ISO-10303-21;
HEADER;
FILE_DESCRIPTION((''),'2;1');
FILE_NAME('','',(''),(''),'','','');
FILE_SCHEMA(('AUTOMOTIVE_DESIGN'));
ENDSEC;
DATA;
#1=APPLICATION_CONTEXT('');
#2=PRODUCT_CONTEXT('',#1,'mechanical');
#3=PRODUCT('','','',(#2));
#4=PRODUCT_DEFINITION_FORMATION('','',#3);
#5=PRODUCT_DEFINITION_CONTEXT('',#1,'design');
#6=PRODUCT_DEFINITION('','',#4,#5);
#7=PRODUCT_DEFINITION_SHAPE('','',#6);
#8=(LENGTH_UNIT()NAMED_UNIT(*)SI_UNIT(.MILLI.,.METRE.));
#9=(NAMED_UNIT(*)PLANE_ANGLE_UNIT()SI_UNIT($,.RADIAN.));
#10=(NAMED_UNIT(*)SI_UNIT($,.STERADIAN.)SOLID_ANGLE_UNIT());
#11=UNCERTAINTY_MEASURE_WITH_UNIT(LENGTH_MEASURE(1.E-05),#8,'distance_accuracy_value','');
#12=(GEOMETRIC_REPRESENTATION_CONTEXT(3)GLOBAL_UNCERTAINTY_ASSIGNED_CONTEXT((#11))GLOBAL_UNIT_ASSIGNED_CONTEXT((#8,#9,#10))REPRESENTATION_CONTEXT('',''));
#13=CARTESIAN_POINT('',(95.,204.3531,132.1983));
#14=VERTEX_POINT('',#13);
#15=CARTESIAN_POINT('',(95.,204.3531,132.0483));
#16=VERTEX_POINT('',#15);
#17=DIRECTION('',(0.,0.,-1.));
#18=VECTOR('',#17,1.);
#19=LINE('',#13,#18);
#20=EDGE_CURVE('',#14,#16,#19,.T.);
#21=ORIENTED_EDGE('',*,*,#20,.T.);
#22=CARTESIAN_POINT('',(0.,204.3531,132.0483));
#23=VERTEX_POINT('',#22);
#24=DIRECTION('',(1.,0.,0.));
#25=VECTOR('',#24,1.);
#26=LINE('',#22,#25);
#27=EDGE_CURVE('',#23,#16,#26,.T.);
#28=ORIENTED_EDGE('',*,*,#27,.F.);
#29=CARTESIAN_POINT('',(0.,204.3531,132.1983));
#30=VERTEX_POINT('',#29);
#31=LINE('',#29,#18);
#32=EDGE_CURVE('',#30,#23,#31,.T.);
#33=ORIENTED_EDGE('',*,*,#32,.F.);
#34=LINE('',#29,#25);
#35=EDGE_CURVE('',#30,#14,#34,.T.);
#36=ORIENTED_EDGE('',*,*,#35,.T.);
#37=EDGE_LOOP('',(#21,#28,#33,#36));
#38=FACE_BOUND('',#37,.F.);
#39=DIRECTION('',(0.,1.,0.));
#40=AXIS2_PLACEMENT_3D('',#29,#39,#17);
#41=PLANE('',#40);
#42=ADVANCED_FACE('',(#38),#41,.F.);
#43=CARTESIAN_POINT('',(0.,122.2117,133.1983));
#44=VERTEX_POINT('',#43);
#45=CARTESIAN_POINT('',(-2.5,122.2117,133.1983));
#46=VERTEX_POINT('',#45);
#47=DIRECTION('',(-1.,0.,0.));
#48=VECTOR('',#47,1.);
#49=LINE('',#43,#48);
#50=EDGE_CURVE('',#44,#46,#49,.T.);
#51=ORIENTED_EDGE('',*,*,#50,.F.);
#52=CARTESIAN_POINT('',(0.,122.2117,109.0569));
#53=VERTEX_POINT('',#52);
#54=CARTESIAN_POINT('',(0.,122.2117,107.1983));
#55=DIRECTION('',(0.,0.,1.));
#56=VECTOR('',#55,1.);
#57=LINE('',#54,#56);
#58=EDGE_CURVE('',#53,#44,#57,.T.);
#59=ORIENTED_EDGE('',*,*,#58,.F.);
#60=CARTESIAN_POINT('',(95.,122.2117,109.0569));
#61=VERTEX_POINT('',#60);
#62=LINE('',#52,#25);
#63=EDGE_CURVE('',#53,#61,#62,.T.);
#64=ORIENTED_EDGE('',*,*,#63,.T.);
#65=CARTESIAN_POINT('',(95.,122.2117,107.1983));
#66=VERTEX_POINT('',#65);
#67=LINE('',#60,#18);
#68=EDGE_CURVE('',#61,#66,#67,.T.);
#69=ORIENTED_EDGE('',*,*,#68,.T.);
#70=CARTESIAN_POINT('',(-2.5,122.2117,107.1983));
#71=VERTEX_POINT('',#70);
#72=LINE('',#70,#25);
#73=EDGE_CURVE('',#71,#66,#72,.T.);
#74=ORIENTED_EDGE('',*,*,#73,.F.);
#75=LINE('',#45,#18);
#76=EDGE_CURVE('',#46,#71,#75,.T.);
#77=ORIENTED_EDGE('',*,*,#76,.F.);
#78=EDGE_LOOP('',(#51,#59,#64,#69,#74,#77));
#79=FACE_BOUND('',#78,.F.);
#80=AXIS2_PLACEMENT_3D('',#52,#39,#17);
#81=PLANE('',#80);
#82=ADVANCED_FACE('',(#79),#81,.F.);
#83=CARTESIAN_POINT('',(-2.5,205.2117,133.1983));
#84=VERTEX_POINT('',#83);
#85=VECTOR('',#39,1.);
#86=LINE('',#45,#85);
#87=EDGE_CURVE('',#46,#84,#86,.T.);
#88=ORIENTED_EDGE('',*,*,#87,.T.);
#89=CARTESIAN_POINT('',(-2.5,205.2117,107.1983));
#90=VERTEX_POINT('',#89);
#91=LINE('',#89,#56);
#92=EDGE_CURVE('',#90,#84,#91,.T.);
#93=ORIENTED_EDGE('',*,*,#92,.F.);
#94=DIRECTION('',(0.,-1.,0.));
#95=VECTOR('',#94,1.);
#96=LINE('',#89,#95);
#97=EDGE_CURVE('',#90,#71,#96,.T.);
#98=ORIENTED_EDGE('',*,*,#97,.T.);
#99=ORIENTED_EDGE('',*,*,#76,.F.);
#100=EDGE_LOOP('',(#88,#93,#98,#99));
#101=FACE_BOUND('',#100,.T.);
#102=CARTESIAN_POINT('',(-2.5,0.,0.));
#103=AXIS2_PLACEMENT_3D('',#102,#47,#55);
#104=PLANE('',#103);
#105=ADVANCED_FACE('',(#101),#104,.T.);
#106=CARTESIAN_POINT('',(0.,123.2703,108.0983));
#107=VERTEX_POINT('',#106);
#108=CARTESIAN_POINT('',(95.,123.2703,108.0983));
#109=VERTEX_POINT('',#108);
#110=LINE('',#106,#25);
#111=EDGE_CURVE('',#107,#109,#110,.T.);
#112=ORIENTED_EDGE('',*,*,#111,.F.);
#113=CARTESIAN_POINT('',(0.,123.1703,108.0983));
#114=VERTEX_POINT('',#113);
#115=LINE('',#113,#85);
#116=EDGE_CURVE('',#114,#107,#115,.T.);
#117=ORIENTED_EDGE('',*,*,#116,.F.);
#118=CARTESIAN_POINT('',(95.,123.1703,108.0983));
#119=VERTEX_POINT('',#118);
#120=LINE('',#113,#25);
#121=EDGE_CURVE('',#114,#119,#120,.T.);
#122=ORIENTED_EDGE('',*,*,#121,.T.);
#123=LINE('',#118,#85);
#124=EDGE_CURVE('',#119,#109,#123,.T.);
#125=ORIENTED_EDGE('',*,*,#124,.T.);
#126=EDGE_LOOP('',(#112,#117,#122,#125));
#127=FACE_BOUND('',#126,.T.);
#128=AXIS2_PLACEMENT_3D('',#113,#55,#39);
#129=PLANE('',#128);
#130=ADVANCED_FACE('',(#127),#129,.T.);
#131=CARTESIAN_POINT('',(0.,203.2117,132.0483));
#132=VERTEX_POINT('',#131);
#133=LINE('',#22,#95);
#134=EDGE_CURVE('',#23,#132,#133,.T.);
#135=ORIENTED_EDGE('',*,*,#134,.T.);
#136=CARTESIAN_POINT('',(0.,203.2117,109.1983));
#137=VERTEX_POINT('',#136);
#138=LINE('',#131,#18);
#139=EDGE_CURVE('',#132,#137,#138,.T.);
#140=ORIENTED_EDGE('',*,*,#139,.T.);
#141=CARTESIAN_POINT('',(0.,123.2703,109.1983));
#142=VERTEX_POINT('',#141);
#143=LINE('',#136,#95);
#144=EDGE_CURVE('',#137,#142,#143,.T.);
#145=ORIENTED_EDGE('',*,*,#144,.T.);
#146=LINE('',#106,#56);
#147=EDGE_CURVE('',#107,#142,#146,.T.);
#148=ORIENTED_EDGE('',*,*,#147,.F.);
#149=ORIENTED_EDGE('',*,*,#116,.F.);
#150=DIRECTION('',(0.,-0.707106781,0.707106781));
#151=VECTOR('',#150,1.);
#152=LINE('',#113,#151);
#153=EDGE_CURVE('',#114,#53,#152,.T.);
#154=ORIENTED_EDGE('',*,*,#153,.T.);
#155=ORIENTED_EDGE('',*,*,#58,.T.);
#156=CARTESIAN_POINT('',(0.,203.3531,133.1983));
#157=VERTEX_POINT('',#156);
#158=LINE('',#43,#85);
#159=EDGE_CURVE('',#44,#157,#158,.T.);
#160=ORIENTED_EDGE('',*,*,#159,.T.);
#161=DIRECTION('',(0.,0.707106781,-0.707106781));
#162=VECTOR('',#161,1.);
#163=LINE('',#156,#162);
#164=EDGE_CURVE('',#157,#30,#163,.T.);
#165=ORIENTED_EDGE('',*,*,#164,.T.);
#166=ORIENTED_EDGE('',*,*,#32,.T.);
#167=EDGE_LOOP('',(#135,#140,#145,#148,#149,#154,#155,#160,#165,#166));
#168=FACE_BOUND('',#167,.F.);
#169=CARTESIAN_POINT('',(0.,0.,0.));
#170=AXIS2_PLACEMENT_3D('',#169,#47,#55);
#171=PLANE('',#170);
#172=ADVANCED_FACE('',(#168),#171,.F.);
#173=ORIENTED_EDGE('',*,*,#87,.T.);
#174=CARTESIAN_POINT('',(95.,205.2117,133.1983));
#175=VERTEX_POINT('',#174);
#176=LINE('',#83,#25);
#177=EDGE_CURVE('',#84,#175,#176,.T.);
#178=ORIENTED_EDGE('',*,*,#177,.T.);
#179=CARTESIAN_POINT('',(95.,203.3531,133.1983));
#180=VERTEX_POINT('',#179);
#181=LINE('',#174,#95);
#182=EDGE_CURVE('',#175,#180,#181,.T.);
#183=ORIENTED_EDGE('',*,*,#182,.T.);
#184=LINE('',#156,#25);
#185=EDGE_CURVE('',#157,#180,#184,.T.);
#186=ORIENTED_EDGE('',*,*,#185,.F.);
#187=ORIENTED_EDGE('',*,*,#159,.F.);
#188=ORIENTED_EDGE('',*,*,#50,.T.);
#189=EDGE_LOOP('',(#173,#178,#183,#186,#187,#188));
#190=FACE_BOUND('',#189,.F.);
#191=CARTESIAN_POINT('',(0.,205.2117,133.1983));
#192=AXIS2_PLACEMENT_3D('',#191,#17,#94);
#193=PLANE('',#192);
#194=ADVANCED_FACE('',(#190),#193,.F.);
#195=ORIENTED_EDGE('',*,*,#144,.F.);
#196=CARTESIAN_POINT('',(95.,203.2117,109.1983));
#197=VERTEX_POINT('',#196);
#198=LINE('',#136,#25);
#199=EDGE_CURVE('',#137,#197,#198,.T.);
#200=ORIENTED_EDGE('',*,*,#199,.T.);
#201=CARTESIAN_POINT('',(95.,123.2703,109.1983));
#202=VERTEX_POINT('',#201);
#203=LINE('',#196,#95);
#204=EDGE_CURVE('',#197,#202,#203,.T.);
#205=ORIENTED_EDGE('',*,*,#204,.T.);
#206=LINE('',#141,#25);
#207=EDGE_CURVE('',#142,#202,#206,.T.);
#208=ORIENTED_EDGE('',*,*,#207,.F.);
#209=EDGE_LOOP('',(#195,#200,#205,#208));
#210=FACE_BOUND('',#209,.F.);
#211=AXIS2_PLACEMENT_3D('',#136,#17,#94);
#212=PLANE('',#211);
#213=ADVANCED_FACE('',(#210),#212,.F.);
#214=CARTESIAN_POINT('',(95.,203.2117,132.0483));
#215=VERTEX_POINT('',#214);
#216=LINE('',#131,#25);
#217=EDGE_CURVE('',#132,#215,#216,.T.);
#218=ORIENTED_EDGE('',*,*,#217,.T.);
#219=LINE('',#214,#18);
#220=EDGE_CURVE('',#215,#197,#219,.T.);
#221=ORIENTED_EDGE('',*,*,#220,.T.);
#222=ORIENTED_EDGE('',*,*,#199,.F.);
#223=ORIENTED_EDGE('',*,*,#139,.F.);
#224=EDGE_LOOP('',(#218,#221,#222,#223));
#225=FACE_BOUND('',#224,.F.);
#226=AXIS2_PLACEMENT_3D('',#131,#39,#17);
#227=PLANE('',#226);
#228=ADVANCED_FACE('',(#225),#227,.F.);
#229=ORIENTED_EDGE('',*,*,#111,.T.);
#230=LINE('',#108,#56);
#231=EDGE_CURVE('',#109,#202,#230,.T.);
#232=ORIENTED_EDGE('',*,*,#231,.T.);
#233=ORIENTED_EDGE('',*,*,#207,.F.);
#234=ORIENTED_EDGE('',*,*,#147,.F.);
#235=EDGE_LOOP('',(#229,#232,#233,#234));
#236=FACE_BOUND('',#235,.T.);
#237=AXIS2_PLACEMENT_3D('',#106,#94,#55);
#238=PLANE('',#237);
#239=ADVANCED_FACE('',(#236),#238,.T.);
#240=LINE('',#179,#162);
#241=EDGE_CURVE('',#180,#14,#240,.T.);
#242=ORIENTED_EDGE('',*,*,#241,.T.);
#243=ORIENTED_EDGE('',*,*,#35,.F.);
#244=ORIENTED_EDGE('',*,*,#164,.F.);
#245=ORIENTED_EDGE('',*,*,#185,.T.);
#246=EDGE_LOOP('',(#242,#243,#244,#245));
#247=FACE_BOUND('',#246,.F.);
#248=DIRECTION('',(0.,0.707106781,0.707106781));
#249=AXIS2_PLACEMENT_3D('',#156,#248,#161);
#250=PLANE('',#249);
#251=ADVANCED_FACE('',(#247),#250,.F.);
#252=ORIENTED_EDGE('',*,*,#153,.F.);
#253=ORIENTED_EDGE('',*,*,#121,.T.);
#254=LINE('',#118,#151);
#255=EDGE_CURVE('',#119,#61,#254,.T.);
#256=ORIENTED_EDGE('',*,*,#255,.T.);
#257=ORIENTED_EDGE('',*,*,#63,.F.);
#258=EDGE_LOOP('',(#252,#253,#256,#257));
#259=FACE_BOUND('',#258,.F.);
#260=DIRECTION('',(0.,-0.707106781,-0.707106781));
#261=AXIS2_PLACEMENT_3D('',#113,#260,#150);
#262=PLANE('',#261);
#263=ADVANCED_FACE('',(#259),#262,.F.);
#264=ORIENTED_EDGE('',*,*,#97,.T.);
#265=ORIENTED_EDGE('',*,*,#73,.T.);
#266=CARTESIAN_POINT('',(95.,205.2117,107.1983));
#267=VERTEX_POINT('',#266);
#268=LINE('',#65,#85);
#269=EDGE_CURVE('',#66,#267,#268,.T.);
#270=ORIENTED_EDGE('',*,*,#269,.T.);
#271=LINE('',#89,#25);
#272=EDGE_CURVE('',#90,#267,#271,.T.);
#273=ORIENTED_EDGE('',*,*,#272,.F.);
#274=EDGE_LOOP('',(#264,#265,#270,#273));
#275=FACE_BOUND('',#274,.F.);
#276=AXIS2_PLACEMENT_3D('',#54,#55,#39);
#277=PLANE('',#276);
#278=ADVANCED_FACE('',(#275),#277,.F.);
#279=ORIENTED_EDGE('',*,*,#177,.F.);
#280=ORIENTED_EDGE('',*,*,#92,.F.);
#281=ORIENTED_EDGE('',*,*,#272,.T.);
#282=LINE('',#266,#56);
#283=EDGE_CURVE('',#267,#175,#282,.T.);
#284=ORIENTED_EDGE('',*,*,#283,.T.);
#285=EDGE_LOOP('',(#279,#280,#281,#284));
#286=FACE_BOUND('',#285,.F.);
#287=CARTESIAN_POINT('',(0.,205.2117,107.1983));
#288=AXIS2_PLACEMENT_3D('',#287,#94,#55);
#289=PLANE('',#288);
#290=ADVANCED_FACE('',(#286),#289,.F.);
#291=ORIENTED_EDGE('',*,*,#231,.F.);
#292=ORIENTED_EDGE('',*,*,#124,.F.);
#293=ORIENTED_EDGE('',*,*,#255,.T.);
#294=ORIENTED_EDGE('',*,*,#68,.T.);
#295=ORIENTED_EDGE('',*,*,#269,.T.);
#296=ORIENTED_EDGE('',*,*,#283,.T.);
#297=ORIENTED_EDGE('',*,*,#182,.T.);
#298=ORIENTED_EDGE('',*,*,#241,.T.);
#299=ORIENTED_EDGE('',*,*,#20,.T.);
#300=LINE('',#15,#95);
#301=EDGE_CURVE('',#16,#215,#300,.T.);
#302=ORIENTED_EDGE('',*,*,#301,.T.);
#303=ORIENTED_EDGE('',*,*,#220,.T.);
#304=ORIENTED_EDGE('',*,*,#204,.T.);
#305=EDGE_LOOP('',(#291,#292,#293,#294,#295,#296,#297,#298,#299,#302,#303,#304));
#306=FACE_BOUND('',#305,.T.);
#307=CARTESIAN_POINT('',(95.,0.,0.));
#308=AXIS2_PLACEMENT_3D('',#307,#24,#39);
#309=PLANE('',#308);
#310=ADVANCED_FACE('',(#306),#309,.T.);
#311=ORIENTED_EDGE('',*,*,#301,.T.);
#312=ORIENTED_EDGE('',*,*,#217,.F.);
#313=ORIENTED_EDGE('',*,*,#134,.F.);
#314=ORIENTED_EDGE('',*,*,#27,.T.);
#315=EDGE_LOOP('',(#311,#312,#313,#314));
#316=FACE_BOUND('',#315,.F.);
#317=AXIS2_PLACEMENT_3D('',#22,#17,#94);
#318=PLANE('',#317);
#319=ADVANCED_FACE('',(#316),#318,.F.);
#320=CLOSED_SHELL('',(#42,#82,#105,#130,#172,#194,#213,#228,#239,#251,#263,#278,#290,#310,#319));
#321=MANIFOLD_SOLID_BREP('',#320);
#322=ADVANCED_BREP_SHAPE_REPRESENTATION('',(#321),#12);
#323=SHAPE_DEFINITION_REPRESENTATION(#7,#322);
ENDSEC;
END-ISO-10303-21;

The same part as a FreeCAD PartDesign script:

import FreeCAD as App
import Part
import Sketcher
Q = App.Units.Quantity


def add_polygon(sketch, points):
    """Adds a closed chain of lines whose ends are joined by coincident constraints."""
    first, n = sketch.GeometryCount, len(points)
    for a, b in zip(points, points[1:] + points[:1]):
        sketch.addGeometry(Part.LineSegment(App.Vector(*a, 0), App.Vector(*b, 0)), False)
    for i in range(n):
        sketch.addConstraint(Sketcher.Constraint("Coincident", first + i, 2, first + (i + 1) % n, 1))

doc = App.newDocument("Part")
body = doc.addObject("PartDesign::Body", "Body")

# Sketch on YZ plane
sketch1 = body.newObject("Sketcher::SketchObject", "Sketch")
sketch1.AttachmentSupport = (doc.getObject("YZ_Plane"), [""])
sketch1.MapMode = "FlatFace"
add_polygon(sketch1, [(122.21, 109.06), (122.21, 107.2), (205.21, 107.2), (205.21, 133.2), (203.35, 133.2), (204.35, 132.2), (204.35, 132.05), (203.21, 132.05), (203.21, 109.2), (123.27, 109.2), (123.27, 108.1), (123.17, 108.1)])  # lines 0-11
sketch1.addConstraint([
    Sketcher.Constraint("Vertical", 0),
    Sketcher.Constraint("Horizontal", 1),
    Sketcher.Constraint("Vertical", 2),
    Sketcher.Constraint("Horizontal", 3),
    Sketcher.Constraint("Vertical", 5),
    Sketcher.Constraint("Horizontal", 6),
    Sketcher.Constraint("Vertical", 7),
    Sketcher.Constraint("Horizontal", 8),
    Sketcher.Constraint("Vertical", 9),
    Sketcher.Constraint("Horizontal", 10),
    Sketcher.Constraint("Parallel", 4, 11),
    Sketcher.Constraint("Equal", 3, 0),
    Sketcher.Constraint("DistanceX", 10, 2, 10, 1, Q("0.1 mm")),
    Sketcher.Constraint("DistanceY", 9, 2, 9, 1, Q("1.1 mm")),
    Sketcher.Constraint("DistanceX", 6, 2, 2, 2, Q("2 mm")),
    Sketcher.Constraint("DistanceY", 1, 2, 7, 2, Q("2 mm")),
    Sketcher.Constraint("DistanceY", 5, 2, 5, 1, Q("0.15 mm")),
    Sketcher.Constraint("DistanceX", 1, 1, 1, 2, Q("83 mm")),
    Sketcher.Constraint("DistanceY", 2, 1, 2, 2, Q("26 mm")),
    Sketcher.Constraint("Angle", 4, Q("-45 deg")),
    Sketcher.Constraint("DistanceY", 4, 2, 2, 2, Q("1 mm")),
    Sketcher.Constraint("DistanceX", 3, 2, 3, 1, Q("1.8586 mm")),
    Sketcher.Constraint("DistanceX", -1, 1, 3, 2, Q("203.353 mm")),
    Sketcher.Constraint("DistanceY", -1, 1, 11, 2, Q("109.057 mm")),
])
pad1 = body.newObject("PartDesign::Pad", "Pad")
pad1.Profile = sketch1
pad1.Length = 95

# Sketch on YZ plane
sketch2 = body.newObject("Sketcher::SketchObject", "Sketch001")
sketch2.AttachmentSupport = (doc.getObject("YZ_Plane"), [""])
sketch2.MapMode = "FlatFace"
add_polygon(sketch2, [(205, 133), (205, 107), (122, 107), (122, 133)])  # lines 0-3
sketch2.addConstraint([
    Sketcher.Constraint("Vertical", 0),
    Sketcher.Constraint("Horizontal", 1),
    Sketcher.Constraint("Vertical", 2),
    Sketcher.Constraint("Horizontal", 3),
    Sketcher.Constraint("DistanceX", 1, 2, 1, 1, Q("83 mm")),
    Sketcher.Constraint("DistanceY", 0, 2, 0, 1, Q("26 mm")),
    Sketcher.Constraint("DistanceX", -1, 1, 0, 2, Q("205.2117 mm")),
    Sketcher.Constraint("DistanceY", -1, 1, 0, 2, Q("107.1983 mm")),
])
pad2 = body.newObject("PartDesign::Pad", "Pad001")
pad2.Profile = sketch2
pad2.Length = 2.5
pad2.Reversed = True

doc.recompute()
